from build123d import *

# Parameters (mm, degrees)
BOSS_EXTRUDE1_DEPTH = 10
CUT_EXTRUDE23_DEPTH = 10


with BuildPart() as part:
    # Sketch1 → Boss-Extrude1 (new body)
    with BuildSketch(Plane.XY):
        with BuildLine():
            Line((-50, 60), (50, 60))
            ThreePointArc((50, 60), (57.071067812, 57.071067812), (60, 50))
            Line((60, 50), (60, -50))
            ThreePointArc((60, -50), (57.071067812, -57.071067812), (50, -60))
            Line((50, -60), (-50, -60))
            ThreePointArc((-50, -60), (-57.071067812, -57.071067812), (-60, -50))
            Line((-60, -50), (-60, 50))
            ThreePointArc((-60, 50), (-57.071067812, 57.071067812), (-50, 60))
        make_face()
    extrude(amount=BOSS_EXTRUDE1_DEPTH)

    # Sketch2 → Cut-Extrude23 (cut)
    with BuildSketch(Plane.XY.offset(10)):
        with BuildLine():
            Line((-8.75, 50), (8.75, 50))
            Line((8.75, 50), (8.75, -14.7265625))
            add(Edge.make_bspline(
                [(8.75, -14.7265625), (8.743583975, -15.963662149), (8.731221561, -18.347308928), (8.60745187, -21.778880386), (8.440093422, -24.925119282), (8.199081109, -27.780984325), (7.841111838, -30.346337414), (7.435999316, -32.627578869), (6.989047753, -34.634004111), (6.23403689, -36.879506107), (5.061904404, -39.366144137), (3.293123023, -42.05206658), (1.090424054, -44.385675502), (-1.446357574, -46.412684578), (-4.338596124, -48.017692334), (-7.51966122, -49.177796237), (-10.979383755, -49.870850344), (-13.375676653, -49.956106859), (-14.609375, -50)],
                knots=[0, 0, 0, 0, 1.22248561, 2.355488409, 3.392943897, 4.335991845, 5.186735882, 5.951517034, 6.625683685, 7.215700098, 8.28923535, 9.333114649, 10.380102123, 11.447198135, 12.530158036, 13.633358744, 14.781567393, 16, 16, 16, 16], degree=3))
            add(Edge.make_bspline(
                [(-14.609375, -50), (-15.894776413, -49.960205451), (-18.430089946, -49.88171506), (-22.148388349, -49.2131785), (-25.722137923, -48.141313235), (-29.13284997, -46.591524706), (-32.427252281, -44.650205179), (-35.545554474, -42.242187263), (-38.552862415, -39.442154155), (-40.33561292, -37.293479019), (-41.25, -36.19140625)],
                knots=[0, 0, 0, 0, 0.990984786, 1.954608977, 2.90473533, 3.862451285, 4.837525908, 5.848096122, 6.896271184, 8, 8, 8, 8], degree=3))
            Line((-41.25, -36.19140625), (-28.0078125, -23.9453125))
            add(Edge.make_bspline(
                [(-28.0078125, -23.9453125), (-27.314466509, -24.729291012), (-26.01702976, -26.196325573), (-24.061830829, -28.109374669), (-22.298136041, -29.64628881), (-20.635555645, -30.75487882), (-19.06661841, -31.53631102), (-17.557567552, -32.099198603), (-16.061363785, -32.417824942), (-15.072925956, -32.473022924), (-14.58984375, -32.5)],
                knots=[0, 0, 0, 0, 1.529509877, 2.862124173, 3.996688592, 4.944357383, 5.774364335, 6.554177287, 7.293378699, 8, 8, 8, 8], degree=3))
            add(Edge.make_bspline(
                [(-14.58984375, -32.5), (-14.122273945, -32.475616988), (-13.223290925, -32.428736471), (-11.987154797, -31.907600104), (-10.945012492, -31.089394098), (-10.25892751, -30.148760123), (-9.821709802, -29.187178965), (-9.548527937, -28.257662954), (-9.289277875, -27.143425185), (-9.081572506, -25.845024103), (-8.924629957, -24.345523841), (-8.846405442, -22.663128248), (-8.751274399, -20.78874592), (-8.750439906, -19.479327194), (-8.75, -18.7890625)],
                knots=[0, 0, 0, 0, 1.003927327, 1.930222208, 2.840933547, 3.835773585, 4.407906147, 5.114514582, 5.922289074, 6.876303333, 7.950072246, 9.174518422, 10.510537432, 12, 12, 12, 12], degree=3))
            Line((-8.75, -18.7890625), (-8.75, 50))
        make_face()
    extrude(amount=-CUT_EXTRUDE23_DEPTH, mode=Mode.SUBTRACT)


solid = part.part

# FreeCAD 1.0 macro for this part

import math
import FreeCAD as App
import Part
import Sketcher

doc = App.newDocument("Part")
body = doc.addObject("PartDesign::Body", "Body")

sketch1 = body.newObject("Sketcher::SketchObject", "Sketch")
sketch1.AttachmentSupport = (doc.getObject("XY_Plane"), [""])
sketch1.MapMode = "FlatFace"
sketch1.addGeometry([
    Part.LineSegment(App.Vector(50, 60, 0), App.Vector(-50, 60, 0)),
    Part.ArcOfCircle(Part.Circle(App.Vector(-50, 50, 0), App.Vector(0, 0, 1), 10), math.radians(90), math.radians(180)),
    Part.LineSegment(App.Vector(-60, 50, 0), App.Vector(-60, -50, 0)),
    Part.ArcOfCircle(Part.Circle(App.Vector(-50, -50, 0), App.Vector(0, 0, 1), 10), math.radians(180), math.radians(270)),
    Part.LineSegment(App.Vector(-50, -60, 0), App.Vector(50, -60, 0)),
    Part.ArcOfCircle(Part.Circle(App.Vector(50, -50, 0), App.Vector(0, 0, 1), 10), math.radians(-90), math.radians(0)),
    Part.LineSegment(App.Vector(60, -50, 0), App.Vector(60, 50, 0)),
    Part.ArcOfCircle(Part.Circle(App.Vector(50, 50, 0), App.Vector(0, 0, 1), 10), math.radians(0), math.radians(90)),
], False)
sketch1.addConstraint([
    Sketcher.Constraint("Tangent", 0, 2, 1, 1),
    Sketcher.Constraint("Tangent", 1, 2, 2, 1),
    Sketcher.Constraint("Tangent", 2, 2, 3, 1),
    Sketcher.Constraint("Tangent", 3, 2, 4, 1),
    Sketcher.Constraint("Tangent", 4, 2, 5, 1),
    Sketcher.Constraint("Tangent", 5, 2, 6, 1),
    Sketcher.Constraint("Tangent", 6, 2, 7, 1),
    Sketcher.Constraint("Tangent", 7, 2, 0, 1),
    Sketcher.Constraint("Horizontal", 0),
    Sketcher.Constraint("Vertical", 2),
    Sketcher.Constraint("Horizontal", 4),
    Sketcher.Constraint("Vertical", 6),
    Sketcher.Constraint("Equal", 1, 3),
    Sketcher.Constraint("Equal", 3, 5),
    Sketcher.Constraint("Equal", 5, 7),
    Sketcher.Constraint("Symmetric", 1, 3, 5, 3, -1, 1),
    Sketcher.Constraint("Equal", 4, 2),
    Sketcher.Constraint("Radius", 1, 10.0),
    Sketcher.Constraint("DistanceX", 0, 2, 0, 1, 100.0),
])
pad1 = body.newObject("PartDesign::Pad", "Pad")
pad1.Profile = sketch1
pad1.Length = 10

sketch2 = body.newObject("Sketcher::SketchObject", "Sketch001")
sketch2.AttachmentSupport = (doc.getObject("XY_Plane"), [""])
sketch2.MapMode = "FlatFace"
sketch2.AttachmentOffset = App.Placement(App.Vector(0, 0, 10), App.Rotation())
sketch2.addGeometry([
    Part.LineSegment(App.Vector(8.75, 50, 0), App.Vector(-8.75, 50, 0)),
    Part.LineSegment(App.Vector(-8.75, 50, 0), App.Vector(-8.75, -18.789062, 0)),
    Part.BSplineCurve([App.Vector(-14.589844, -32.5, 0), App.Vector(-14.122274, -32.475617, 0), App.Vector(-13.223291, -32.428736, 0), App.Vector(-11.987155, -31.9076, 0), App.Vector(-10.945012, -31.089394, 0), App.Vector(-10.258928, -30.14876, 0), App.Vector(-9.82171, -29.187179, 0), App.Vector(-9.548528, -28.257663, 0), App.Vector(-9.289278, -27.143425, 0), App.Vector(-9.081573, -25.845024, 0), App.Vector(-8.92463, -24.345524, 0), App.Vector(-8.846405, -22.663128, 0), App.Vector(-8.751274, -20.788746, 0), App.Vector(-8.75044, -19.479327, 0), App.Vector(-8.75, -18.789062, 0)], [4, 1, 1, 1, 1, 1, 1, 1, 1, 1, 1, 1, 4], [0, 1.003927327, 1.930222208, 2.840933547, 3.835773585, 4.407906147, 5.114514582, 5.922289074, 6.876303333, 7.950072246, 9.174518422, 10.510537432, 12], False, 3, [1, 1, 1, 1, 1, 1, 1, 1, 1, 1, 1, 1, 1, 1, 1], False),
    Part.BSplineCurve([App.Vector(-28.007812, -23.945312, 0), App.Vector(-27.314467, -24.729291, 0), App.Vector(-26.01703, -26.196326, 0), App.Vector(-24.061831, -28.109375, 0), App.Vector(-22.298136, -29.646289, 0), App.Vector(-20.635556, -30.754879, 0), App.Vector(-19.066618, -31.536311, 0), App.Vector(-17.557568, -32.099199, 0), App.Vector(-16.061364, -32.417825, 0), App.Vector(-15.072926, -32.473023, 0), App.Vector(-14.589844, -32.5, 0)], [4, 1, 1, 1, 1, 1, 1, 1, 4], [0, 1.529509877, 2.862124173, 3.996688592, 4.944357383, 5.774364335, 6.554177287, 7.293378699, 8], False, 3, [1, 1, 1, 1, 1, 1, 1, 1, 1, 1, 1], False),
    Part.LineSegment(App.Vector(-28.007812, -23.945312, 0), App.Vector(-41.25, -36.191406, 0)),
    Part.BSplineCurve([App.Vector(-14.609375, -50, 0), App.Vector(-15.894776, -49.960205, 0), App.Vector(-18.43009, -49.881715, 0), App.Vector(-22.148388, -49.213178, 0), App.Vector(-25.722138, -48.141313, 0), App.Vector(-29.13285, -46.591525, 0), App.Vector(-32.427252, -44.650205, 0), App.Vector(-35.545554, -42.242187, 0), App.Vector(-38.552862, -39.442154, 0), App.Vector(-40.335613, -37.293479, 0), App.Vector(-41.25, -36.191406, 0)], [4, 1, 1, 1, 1, 1, 1, 1, 4], [0, 0.990984786, 1.954608977, 2.90473533, 3.862451285, 4.837525908, 5.848096122, 6.896271184, 8], False, 3, [1, 1, 1, 1, 1, 1, 1, 1, 1, 1, 1], False),
    Part.BSplineCurve([App.Vector(8.75, -14.726562, 0), App.Vector(8.743584, -15.963662, 0), App.Vector(8.731222, -18.347309, 0), App.Vector(8.607452, -21.77888, 0), App.Vector(8.440093, -24.925119, 0), App.Vector(8.199081, -27.780984, 0), App.Vector(7.841112, -30.346337, 0), App.Vector(7.435999, -32.627579, 0), App.Vector(6.989048, -34.634004, 0), App.Vector(6.234037, -36.879506, 0), App.Vector(5.061904, -39.366144, 0), App.Vector(3.293123, -42.052067, 0), App.Vector(1.090424, -44.385676, 0), App.Vector(-1.446358, -46.412685, 0), App.Vector(-4.338596, -48.017692, 0), App.Vector(-7.519661, -49.177796, 0), App.Vector(-10.979384, -49.87085, 0), App.Vector(-13.375677, -49.956107, 0), App.Vector(-14.609375, -50, 0)], [4, 1, 1, 1, 1, 1, 1, 1, 1, 1, 1, 1, 1, 1, 1, 1, 4], [0, 1.22248561, 2.355488409, 3.392943897, 4.335991845, 5.186735882, 5.951517034, 6.625683685, 7.215700098, 8.28923535, 9.333114649, 10.380102123, 11.447198135, 12.530158036, 13.633358744, 14.781567393, 16], False, 3, [1, 1, 1, 1, 1, 1, 1, 1, 1, 1, 1, 1, 1, 1, 1, 1, 1, 1, 1], False),
    Part.LineSegment(App.Vector(8.75, -14.726562, 0), App.Vector(8.75, 50, 0)),
], False)
sketch2.addConstraint([
    Sketcher.Constraint("Block", 2),
    Sketcher.Constraint("Block", 3),
    Sketcher.Constraint("Block", 5),
    Sketcher.Constraint("Block", 6),
    Sketcher.Constraint("Coincident", 0, 2, 1, 1),
    Sketcher.Constraint("Coincident", 1, 2, 2, 2),
    Sketcher.Constraint("Coincident", 3, 1, 4, 1),
    Sketcher.Constraint("Coincident", 4, 2, 5, 2),
    Sketcher.Constraint("Coincident", 6, 1, 7, 1),
    Sketcher.Constraint("Coincident", 7, 2, 0, 1),
    Sketcher.Constraint("Horizontal", 0),
    Sketcher.Constraint("Vertical", 1),
    Sketcher.Constraint("Vertical", 7),
    Sketcher.Constraint("DistanceY", -1, 1, 0, 2, 50.0),
])
pocket1 = body.newObject("PartDesign::Pocket", "Pocket")
pocket1.Profile = sketch2
pocket1.Length = 10

doc.recompute()
